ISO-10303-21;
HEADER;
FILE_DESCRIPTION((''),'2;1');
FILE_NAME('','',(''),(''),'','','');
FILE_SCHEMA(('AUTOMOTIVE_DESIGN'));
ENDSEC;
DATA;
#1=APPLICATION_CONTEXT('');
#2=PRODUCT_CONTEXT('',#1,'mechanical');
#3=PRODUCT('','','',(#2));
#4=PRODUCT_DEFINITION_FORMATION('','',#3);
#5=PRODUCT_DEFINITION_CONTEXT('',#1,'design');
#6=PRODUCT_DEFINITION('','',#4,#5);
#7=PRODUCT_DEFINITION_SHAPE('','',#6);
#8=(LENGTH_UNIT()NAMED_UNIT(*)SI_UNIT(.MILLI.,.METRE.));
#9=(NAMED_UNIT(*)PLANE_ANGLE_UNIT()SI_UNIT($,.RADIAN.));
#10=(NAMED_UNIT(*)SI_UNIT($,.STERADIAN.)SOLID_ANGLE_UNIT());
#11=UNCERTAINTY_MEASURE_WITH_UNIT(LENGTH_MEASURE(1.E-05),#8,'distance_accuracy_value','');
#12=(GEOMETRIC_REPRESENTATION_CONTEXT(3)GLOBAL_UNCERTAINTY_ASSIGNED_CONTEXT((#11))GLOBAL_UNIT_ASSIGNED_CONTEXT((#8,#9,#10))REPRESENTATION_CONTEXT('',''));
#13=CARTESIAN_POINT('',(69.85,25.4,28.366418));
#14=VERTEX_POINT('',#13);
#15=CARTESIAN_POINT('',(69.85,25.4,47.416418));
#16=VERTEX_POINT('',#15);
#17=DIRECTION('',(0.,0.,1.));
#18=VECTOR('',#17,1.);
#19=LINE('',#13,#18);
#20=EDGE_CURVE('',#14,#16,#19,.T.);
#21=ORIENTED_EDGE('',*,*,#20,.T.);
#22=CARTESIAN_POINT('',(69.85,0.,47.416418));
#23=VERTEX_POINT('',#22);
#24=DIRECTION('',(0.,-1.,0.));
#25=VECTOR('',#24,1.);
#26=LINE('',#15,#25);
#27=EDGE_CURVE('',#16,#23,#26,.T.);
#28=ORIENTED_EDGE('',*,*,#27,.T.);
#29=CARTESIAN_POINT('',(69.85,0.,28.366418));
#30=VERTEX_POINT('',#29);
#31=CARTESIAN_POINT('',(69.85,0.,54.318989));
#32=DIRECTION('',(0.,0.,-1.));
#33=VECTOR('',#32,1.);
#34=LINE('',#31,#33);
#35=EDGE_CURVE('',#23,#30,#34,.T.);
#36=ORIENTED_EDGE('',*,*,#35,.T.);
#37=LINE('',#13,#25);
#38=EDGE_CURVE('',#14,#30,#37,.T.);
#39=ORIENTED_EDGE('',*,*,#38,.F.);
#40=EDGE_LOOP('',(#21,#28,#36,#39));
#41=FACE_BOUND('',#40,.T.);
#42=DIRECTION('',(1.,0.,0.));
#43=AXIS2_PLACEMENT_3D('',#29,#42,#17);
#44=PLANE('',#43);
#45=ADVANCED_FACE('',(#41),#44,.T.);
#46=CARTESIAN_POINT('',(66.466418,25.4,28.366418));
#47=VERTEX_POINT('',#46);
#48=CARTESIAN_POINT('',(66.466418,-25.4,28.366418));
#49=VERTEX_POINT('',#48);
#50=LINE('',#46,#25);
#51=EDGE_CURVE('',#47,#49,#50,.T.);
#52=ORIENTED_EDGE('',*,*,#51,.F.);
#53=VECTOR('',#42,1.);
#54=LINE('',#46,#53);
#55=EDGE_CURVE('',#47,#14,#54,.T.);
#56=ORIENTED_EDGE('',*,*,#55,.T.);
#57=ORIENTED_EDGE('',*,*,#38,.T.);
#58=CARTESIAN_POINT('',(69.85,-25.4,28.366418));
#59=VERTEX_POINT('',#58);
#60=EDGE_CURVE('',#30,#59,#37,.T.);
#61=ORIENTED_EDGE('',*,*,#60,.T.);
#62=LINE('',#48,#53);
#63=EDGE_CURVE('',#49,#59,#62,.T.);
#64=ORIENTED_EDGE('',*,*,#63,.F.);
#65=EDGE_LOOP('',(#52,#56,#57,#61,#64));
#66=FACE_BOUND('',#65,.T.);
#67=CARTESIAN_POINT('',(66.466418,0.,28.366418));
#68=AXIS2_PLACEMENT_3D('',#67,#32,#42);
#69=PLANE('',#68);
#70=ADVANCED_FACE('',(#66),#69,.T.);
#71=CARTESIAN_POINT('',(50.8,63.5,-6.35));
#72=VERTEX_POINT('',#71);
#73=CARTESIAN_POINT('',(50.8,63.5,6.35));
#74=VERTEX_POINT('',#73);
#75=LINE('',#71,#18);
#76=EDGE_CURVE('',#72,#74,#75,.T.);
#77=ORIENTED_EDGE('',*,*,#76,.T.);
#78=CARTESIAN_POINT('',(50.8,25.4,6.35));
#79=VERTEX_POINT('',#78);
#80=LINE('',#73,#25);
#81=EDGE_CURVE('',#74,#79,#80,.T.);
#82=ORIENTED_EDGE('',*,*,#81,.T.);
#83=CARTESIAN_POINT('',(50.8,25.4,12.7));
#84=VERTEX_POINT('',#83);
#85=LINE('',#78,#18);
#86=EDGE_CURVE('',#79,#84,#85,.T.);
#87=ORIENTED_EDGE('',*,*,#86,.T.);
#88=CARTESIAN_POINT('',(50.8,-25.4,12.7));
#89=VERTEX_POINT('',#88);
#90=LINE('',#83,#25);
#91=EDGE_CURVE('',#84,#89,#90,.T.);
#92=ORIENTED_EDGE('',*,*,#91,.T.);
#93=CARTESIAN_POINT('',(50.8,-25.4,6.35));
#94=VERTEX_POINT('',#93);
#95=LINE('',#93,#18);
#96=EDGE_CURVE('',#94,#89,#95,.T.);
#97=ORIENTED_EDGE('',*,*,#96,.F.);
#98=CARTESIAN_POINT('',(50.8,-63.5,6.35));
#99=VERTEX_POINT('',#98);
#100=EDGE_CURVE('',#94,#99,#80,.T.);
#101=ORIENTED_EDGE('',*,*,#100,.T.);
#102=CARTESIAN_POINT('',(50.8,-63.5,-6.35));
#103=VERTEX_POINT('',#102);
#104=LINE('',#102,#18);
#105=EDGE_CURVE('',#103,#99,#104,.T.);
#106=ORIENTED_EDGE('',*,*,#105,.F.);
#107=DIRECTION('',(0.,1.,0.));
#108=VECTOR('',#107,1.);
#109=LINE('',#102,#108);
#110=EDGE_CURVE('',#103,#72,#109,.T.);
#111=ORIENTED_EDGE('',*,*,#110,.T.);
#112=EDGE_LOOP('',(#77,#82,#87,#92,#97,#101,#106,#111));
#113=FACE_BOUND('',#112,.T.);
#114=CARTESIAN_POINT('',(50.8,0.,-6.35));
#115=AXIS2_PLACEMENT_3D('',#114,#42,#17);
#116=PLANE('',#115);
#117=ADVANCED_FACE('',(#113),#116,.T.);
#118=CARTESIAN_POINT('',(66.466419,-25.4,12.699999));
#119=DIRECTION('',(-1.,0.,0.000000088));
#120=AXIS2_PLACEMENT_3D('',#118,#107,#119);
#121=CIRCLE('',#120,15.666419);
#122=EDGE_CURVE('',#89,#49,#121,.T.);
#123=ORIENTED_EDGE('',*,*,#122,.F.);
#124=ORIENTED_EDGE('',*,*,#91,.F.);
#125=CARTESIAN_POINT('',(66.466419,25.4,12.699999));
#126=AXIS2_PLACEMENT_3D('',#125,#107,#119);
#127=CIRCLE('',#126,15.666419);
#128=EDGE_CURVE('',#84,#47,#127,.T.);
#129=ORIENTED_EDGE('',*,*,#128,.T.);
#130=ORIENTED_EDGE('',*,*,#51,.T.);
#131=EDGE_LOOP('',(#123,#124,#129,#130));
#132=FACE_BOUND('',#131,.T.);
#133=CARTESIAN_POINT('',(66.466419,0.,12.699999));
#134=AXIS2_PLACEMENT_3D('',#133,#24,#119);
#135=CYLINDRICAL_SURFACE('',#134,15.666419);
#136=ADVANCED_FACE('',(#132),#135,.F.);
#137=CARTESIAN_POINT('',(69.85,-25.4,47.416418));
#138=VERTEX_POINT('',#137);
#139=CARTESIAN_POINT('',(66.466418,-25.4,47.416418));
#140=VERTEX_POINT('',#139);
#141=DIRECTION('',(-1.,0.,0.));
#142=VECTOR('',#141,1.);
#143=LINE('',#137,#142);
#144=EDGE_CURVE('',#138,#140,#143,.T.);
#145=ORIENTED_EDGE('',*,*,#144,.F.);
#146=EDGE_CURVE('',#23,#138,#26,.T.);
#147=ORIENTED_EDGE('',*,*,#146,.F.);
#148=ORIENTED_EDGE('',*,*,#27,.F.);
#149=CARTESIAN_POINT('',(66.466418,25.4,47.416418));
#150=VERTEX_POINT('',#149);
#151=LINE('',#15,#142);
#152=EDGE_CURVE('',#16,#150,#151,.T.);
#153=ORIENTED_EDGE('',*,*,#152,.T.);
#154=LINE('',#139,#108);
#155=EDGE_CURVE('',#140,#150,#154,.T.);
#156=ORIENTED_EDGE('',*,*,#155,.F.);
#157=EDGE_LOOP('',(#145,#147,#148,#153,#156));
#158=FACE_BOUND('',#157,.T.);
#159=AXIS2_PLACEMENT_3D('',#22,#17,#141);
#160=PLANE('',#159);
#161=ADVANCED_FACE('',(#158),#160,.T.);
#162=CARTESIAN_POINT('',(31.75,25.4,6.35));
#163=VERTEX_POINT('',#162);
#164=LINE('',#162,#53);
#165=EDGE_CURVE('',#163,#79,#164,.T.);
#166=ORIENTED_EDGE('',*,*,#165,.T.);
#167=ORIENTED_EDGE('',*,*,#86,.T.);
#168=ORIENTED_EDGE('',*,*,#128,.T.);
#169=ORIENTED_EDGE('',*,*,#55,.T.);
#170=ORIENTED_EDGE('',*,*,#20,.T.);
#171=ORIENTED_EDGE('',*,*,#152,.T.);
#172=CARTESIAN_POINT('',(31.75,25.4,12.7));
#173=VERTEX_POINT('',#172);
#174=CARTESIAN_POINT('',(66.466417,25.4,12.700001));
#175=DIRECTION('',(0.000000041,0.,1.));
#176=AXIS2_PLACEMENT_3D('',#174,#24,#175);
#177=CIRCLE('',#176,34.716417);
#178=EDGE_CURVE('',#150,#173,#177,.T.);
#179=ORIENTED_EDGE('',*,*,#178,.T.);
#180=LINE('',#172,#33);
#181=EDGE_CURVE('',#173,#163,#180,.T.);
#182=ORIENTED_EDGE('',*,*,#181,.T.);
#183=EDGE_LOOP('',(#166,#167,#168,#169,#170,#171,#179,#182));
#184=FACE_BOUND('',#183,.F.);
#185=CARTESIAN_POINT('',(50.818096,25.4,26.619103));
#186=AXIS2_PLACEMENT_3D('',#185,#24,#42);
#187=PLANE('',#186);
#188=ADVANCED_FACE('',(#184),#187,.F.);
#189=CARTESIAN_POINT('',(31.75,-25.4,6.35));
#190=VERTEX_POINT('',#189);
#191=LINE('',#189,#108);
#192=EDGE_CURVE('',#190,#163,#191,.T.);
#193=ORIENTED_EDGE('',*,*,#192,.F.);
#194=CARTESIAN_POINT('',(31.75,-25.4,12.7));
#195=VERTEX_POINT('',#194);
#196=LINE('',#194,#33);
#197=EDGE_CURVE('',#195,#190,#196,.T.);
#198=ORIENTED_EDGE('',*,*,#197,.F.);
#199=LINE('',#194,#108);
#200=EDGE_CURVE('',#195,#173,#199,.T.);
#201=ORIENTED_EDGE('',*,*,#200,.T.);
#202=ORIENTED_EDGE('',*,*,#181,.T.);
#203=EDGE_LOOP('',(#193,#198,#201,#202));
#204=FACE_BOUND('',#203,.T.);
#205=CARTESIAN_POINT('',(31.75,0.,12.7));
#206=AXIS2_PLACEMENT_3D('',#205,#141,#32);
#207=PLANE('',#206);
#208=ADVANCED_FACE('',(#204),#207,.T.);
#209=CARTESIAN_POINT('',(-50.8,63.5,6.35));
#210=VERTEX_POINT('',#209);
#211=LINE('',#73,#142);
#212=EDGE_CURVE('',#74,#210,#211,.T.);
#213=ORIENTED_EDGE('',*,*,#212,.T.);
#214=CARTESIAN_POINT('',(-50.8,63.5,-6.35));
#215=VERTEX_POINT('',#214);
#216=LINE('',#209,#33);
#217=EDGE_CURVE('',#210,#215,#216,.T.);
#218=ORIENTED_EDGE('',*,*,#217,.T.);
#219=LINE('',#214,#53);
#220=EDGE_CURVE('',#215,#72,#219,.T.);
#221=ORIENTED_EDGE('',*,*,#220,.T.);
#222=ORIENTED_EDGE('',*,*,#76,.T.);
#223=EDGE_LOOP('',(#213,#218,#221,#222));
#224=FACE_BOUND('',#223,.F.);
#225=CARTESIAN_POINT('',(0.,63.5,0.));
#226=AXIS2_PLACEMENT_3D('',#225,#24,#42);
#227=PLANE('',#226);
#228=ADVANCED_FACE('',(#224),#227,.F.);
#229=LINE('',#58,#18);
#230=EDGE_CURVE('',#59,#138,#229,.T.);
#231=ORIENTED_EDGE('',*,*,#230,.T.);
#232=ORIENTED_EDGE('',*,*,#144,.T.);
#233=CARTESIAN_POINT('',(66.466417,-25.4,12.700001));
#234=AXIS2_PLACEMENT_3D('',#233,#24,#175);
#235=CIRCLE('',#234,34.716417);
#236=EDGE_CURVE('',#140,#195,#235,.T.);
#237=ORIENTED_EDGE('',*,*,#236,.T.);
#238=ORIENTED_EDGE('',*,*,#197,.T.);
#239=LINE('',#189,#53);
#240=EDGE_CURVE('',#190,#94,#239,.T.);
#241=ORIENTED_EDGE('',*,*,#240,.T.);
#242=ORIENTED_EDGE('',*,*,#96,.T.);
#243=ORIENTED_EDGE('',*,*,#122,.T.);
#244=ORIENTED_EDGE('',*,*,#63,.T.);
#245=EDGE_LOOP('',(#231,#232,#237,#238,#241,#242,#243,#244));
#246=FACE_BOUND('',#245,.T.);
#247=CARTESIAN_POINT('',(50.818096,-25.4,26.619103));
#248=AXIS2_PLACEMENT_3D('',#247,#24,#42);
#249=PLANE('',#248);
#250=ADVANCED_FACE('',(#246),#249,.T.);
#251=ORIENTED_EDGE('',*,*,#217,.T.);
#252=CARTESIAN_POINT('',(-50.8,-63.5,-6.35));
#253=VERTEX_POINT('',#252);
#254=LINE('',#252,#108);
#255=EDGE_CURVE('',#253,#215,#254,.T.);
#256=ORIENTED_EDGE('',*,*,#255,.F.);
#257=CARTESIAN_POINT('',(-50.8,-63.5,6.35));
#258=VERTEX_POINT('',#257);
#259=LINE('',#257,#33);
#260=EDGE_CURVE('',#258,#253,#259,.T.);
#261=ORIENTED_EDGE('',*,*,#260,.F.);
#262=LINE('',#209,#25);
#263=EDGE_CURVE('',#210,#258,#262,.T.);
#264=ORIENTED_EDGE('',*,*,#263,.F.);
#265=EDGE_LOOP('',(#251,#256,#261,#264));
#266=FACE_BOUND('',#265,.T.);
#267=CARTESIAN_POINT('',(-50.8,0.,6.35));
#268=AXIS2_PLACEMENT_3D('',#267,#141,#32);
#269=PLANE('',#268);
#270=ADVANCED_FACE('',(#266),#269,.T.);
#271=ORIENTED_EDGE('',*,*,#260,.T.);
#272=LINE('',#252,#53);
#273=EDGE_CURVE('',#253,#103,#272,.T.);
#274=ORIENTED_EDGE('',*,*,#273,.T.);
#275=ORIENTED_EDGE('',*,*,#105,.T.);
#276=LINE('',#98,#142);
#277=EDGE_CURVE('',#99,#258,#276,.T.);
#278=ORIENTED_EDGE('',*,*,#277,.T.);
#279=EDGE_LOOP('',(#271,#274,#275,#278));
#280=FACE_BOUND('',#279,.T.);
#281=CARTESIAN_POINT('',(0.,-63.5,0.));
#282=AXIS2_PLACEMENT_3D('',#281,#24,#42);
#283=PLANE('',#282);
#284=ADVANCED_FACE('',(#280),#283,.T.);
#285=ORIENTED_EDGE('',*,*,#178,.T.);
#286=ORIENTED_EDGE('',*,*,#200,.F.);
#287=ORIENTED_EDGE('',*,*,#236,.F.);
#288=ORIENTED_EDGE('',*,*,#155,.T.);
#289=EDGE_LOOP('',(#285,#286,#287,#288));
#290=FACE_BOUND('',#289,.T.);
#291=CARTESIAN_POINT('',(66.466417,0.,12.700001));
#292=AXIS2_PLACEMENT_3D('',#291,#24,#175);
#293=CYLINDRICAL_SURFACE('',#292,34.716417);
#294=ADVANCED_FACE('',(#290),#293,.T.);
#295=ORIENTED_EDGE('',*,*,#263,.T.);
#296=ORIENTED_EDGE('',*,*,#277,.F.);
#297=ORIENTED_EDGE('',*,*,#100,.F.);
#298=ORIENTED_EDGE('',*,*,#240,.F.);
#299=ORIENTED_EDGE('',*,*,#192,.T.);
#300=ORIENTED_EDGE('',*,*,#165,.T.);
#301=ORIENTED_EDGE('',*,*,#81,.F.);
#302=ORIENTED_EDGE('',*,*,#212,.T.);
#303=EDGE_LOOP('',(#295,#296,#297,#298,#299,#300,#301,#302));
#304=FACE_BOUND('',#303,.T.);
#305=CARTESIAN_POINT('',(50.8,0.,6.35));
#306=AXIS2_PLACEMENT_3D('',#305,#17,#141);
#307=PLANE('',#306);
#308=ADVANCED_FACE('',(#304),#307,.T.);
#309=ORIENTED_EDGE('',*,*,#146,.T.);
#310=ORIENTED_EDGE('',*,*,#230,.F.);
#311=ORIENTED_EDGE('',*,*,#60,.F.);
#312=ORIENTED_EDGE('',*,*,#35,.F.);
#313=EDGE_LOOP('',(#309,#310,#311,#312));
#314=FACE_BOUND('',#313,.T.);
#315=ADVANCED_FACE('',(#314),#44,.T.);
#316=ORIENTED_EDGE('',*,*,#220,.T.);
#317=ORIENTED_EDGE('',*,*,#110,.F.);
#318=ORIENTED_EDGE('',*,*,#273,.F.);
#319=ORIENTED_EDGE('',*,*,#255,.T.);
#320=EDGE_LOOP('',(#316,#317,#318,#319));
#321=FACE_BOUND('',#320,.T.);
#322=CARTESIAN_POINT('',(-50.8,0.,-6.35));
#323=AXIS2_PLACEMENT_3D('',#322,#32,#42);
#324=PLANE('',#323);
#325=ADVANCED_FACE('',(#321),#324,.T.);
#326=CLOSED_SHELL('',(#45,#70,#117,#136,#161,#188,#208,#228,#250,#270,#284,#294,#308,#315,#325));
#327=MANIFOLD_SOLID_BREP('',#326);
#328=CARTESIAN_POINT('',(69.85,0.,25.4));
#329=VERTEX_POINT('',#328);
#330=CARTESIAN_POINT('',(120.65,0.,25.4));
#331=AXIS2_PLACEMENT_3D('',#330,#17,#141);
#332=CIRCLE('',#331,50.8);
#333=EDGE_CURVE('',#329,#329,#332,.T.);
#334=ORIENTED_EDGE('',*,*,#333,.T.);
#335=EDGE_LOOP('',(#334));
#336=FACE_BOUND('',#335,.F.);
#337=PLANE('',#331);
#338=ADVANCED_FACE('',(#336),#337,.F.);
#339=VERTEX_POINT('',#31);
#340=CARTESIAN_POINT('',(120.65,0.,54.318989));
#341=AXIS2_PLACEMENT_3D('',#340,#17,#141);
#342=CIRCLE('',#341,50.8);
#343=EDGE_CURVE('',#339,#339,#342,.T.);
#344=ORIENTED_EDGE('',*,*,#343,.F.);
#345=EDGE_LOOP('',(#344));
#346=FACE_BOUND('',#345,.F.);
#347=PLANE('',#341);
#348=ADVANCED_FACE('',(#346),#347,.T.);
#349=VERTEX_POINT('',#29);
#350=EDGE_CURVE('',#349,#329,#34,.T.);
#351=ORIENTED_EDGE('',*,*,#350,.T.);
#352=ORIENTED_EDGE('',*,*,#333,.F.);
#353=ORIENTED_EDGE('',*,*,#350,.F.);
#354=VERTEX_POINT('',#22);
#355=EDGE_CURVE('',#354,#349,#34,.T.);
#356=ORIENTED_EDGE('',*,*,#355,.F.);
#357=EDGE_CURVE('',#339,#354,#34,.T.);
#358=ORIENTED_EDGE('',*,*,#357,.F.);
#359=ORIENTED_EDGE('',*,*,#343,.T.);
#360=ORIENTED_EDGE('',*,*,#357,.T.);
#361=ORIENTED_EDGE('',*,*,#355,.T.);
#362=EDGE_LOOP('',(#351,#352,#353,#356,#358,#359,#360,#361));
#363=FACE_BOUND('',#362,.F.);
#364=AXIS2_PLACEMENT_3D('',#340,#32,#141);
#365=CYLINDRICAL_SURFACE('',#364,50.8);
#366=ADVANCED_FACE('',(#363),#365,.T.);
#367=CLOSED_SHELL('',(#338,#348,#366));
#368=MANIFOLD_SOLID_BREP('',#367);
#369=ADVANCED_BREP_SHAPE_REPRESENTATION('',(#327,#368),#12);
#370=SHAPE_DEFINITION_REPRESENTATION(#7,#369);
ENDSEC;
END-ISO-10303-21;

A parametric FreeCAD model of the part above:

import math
import FreeCAD as App
import Part
import Sketcher
Q = App.Units.Quantity

doc = App.newDocument("Part")
params = doc.addObject("Spreadsheet::Sheet", "Params")
for row, (alias, value) in enumerate([
    ("sketch1_width", "4 in"),
    ("sketch1_height", "0.5 in"),
    ("pad1_length", "5 in"),
    ("sketch2_width", "0.75 in"),
    ("sketch2_height", "0.25 in"),
    ("pad2_length", "2 in"),
    ("sketch3_width", "2 in"),
    ("revolution_angle", "360 deg"),
], start=1):
    params.set(f"A{row}", alias)
    params.set(f"B{row}", "=" + value)
    params.setAlias(f"B{row}", alias)

body = doc.addObject("PartDesign::Body", "Body")
body.AllowCompound = True

# Sketch on XZ plane
sketch1 = doc.addObject("Sketcher::SketchObject", "Sketch")
body.addObject(sketch1)
sketch1.AttachmentSupport = (doc.XZ_Plane, [""])
sketch1.MapMode = "FlatFace"
sketch1.addGeometry([
    Part.LineSegment(App.Vector(51, -6, 0), App.Vector(51, 6, 0)),
    Part.LineSegment(App.Vector(51, 6, 0), App.Vector(-51, 6, 0)),
    Part.LineSegment(App.Vector(-51, 6, 0), App.Vector(-51, -6, 0)),
    Part.LineSegment(App.Vector(-51, -6, 0), App.Vector(51, -6, 0)),
], False)
sketch1.addConstraint([
    Sketcher.Constraint("Coincident", 0, 2, 1, 1),
    Sketcher.Constraint("Coincident", 1, 2, 2, 1),
    Sketcher.Constraint("Coincident", 2, 2, 3, 1),
    Sketcher.Constraint("Coincident", 3, 2, 0, 1),
    Sketcher.Constraint("Vertical", 0),
    Sketcher.Constraint("Horizontal", 1),
    Sketcher.Constraint("Vertical", 2),
    Sketcher.Constraint("Horizontal", 3),
    Sketcher.Constraint("Symmetric", 0, 2, 2, 2, -1, 1),
    Sketcher.Constraint("DistanceX", 1, 2, 1, 1, Q("4 in")),
    Sketcher.Constraint("DistanceY", 0, 1, 0, 2, Q("0.5 in")),
])
sketch1.setExpression("Constraints[9]", "Params.sketch1_width")
sketch1.setExpression("Constraints[10]", "Params.sketch1_height")
pad1 = doc.addObject("PartDesign::Pad", "Pad")
body.addObject(pad1)
pad1.Profile = sketch1
pad1.setExpression("Length", "Params.pad1_length")
pad1.Midplane = True

# Sketch on XZ plane
sketch2 = doc.addObject("Sketcher::SketchObject", "Sketch001")
body.addObject(sketch2)
sketch2.AttachmentSupport = (doc.XZ_Plane, [""])
sketch2.MapMode = "FlatFace"
sketch2.addGeometry([
    Part.LineSegment(App.Vector(31.8, 6.3, 0), App.Vector(50.8, 6.3, 0)),  # 0
    Part.LineSegment(App.Vector(50.8, 6.3, 0), App.Vector(50.8, 12.7, 0)),  # 1
    Part.ArcOfCircle(Part.Circle(App.Vector(66.5, 12.7, 0), App.Vector(0, 0, 1), 15.7), math.radians(90), math.radians(180)),  # 2
    Part.LineSegment(App.Vector(66.5, 28.4, 0), App.Vector(69.8, 28.4, 0)),  # 3
    Part.LineSegment(App.Vector(69.8, 28.4, 0), App.Vector(69.8, 47.4, 0)),  # 4
    Part.LineSegment(App.Vector(69.8, 47.4, 0), App.Vector(66.5, 47.4, 0)),  # 5
    Part.ArcOfCircle(Part.Circle(App.Vector(66.5, 12.7, 0), App.Vector(0, 0, 1), 34.7), math.radians(90), math.radians(180)),  # 6
    Part.LineSegment(App.Vector(31.8, 12.7, 0), App.Vector(31.8, 6.3, 0)),  # 7
], False)
sketch2.addConstraint([
    Sketcher.Constraint("Coincident", 0, 2, 1, 1),
    Sketcher.Constraint("Tangent", 1, 2, 2, 2),
    Sketcher.Constraint("Tangent", 2, 1, 3, 1),
    Sketcher.Constraint("Coincident", 3, 2, 4, 1),
    Sketcher.Constraint("Coincident", 4, 2, 5, 1),
    Sketcher.Constraint("Tangent", 5, 2, 6, 1),
    Sketcher.Constraint("Tangent", 6, 2, 7, 1),
    Sketcher.Constraint("Coincident", 7, 2, 0, 1),
    Sketcher.Constraint("Horizontal", 0),
    Sketcher.Constraint("Vertical", 1),
    Sketcher.Constraint("Horizontal", 3),
    Sketcher.Constraint("Vertical", 4),
    Sketcher.Constraint("Horizontal", 5),
    Sketcher.Constraint("Vertical", 7),
    Sketcher.Constraint("Coincident", 6, 3, 2, 3),
    Sketcher.Constraint("DistanceX", -1, 1, 0, 2, Q("2 in")),
    Sketcher.Constraint("DistanceX", 0, 1, 0, 2, Q("0.75 in")),
    Sketcher.Constraint("DistanceY", 1, 1, 1, 2, Q("0.25 in")),
    Sketcher.Constraint("DistanceY", -1, 1, 2, 3, Q("0.4999999 in")),
    Sketcher.Constraint("DistanceX", -1, 1, 3, 2, Q("2.75 in")),
    Sketcher.Constraint("Radius", 2, Q("15.666419 mm")),
])
sketch2.setExpression("Constraints[16]", "Params.sketch2_width")
sketch2.setExpression("Constraints[17]", "Params.sketch2_height")
pad2 = doc.addObject("PartDesign::Pad", "Pad001")
body.addObject(pad2)
pad2.Profile = sketch2
pad2.setExpression("Length", "Params.pad2_length")
pad2.Midplane = True

# Sketch on XZ plane
sketch3 = doc.addObject("Sketcher::SketchObject", "Sketch002")
body.addObject(sketch3)
sketch3.AttachmentSupport = (doc.XZ_Plane, [""])
sketch3.MapMode = "FlatFace"
sketch3.addGeometry([
    Part.LineSegment(App.Vector(70, 25, 0), App.Vector(121, 25, 0)),
    Part.LineSegment(App.Vector(121, 25, 0), App.Vector(121, 54, 0)),
    Part.LineSegment(App.Vector(121, 54, 0), App.Vector(70, 54, 0)),
    Part.LineSegment(App.Vector(70, 54, 0), App.Vector(70, 25, 0)),
], False)
sketch3.addGeometry(Part.LineSegment(App.Vector(121, 25, 0), App.Vector(121, 54, 0)), True)  # axis
sketch3.addConstraint([
    Sketcher.Constraint("Coincident", 0, 2, 1, 1),
    Sketcher.Constraint("Coincident", 1, 2, 2, 1),
    Sketcher.Constraint("Coincident", 2, 2, 3, 1),
    Sketcher.Constraint("Coincident", 3, 2, 0, 1),
    Sketcher.Constraint("Horizontal", 0),
    Sketcher.Constraint("Vertical", 1),
    Sketcher.Constraint("Horizontal", 2),
    Sketcher.Constraint("Vertical", 3),
    Sketcher.Constraint("Vertical", 4),
    Sketcher.Constraint("Coincident", 4, 1, 0, 2),
    Sketcher.Constraint("Horizontal", 2, 2, 4, 2),
    Sketcher.Constraint("DistanceX", 0, 1, 0, 2, Q("2 in")),
    Sketcher.Constraint("DistanceY", -1, 1, 0, 2, Q("1 in")),
    Sketcher.Constraint("DistanceX", -1, 1, 0, 2, Q("4.75 in")),
    Sketcher.Constraint("DistanceY", 1, 1, 1, 2, Q("28.918989 mm")),
])
sketch3.setExpression("Constraints[11]", "Params.sketch3_width")
revolution = doc.addObject("PartDesign::Revolution", "Revolution")
body.addObject(revolution)
revolution.Profile = sketch3
revolution.ReferenceAxis = (sketch3, ["Axis0"])
revolution.setExpression("Angle", "Params.revolution_angle")

doc.recompute()
